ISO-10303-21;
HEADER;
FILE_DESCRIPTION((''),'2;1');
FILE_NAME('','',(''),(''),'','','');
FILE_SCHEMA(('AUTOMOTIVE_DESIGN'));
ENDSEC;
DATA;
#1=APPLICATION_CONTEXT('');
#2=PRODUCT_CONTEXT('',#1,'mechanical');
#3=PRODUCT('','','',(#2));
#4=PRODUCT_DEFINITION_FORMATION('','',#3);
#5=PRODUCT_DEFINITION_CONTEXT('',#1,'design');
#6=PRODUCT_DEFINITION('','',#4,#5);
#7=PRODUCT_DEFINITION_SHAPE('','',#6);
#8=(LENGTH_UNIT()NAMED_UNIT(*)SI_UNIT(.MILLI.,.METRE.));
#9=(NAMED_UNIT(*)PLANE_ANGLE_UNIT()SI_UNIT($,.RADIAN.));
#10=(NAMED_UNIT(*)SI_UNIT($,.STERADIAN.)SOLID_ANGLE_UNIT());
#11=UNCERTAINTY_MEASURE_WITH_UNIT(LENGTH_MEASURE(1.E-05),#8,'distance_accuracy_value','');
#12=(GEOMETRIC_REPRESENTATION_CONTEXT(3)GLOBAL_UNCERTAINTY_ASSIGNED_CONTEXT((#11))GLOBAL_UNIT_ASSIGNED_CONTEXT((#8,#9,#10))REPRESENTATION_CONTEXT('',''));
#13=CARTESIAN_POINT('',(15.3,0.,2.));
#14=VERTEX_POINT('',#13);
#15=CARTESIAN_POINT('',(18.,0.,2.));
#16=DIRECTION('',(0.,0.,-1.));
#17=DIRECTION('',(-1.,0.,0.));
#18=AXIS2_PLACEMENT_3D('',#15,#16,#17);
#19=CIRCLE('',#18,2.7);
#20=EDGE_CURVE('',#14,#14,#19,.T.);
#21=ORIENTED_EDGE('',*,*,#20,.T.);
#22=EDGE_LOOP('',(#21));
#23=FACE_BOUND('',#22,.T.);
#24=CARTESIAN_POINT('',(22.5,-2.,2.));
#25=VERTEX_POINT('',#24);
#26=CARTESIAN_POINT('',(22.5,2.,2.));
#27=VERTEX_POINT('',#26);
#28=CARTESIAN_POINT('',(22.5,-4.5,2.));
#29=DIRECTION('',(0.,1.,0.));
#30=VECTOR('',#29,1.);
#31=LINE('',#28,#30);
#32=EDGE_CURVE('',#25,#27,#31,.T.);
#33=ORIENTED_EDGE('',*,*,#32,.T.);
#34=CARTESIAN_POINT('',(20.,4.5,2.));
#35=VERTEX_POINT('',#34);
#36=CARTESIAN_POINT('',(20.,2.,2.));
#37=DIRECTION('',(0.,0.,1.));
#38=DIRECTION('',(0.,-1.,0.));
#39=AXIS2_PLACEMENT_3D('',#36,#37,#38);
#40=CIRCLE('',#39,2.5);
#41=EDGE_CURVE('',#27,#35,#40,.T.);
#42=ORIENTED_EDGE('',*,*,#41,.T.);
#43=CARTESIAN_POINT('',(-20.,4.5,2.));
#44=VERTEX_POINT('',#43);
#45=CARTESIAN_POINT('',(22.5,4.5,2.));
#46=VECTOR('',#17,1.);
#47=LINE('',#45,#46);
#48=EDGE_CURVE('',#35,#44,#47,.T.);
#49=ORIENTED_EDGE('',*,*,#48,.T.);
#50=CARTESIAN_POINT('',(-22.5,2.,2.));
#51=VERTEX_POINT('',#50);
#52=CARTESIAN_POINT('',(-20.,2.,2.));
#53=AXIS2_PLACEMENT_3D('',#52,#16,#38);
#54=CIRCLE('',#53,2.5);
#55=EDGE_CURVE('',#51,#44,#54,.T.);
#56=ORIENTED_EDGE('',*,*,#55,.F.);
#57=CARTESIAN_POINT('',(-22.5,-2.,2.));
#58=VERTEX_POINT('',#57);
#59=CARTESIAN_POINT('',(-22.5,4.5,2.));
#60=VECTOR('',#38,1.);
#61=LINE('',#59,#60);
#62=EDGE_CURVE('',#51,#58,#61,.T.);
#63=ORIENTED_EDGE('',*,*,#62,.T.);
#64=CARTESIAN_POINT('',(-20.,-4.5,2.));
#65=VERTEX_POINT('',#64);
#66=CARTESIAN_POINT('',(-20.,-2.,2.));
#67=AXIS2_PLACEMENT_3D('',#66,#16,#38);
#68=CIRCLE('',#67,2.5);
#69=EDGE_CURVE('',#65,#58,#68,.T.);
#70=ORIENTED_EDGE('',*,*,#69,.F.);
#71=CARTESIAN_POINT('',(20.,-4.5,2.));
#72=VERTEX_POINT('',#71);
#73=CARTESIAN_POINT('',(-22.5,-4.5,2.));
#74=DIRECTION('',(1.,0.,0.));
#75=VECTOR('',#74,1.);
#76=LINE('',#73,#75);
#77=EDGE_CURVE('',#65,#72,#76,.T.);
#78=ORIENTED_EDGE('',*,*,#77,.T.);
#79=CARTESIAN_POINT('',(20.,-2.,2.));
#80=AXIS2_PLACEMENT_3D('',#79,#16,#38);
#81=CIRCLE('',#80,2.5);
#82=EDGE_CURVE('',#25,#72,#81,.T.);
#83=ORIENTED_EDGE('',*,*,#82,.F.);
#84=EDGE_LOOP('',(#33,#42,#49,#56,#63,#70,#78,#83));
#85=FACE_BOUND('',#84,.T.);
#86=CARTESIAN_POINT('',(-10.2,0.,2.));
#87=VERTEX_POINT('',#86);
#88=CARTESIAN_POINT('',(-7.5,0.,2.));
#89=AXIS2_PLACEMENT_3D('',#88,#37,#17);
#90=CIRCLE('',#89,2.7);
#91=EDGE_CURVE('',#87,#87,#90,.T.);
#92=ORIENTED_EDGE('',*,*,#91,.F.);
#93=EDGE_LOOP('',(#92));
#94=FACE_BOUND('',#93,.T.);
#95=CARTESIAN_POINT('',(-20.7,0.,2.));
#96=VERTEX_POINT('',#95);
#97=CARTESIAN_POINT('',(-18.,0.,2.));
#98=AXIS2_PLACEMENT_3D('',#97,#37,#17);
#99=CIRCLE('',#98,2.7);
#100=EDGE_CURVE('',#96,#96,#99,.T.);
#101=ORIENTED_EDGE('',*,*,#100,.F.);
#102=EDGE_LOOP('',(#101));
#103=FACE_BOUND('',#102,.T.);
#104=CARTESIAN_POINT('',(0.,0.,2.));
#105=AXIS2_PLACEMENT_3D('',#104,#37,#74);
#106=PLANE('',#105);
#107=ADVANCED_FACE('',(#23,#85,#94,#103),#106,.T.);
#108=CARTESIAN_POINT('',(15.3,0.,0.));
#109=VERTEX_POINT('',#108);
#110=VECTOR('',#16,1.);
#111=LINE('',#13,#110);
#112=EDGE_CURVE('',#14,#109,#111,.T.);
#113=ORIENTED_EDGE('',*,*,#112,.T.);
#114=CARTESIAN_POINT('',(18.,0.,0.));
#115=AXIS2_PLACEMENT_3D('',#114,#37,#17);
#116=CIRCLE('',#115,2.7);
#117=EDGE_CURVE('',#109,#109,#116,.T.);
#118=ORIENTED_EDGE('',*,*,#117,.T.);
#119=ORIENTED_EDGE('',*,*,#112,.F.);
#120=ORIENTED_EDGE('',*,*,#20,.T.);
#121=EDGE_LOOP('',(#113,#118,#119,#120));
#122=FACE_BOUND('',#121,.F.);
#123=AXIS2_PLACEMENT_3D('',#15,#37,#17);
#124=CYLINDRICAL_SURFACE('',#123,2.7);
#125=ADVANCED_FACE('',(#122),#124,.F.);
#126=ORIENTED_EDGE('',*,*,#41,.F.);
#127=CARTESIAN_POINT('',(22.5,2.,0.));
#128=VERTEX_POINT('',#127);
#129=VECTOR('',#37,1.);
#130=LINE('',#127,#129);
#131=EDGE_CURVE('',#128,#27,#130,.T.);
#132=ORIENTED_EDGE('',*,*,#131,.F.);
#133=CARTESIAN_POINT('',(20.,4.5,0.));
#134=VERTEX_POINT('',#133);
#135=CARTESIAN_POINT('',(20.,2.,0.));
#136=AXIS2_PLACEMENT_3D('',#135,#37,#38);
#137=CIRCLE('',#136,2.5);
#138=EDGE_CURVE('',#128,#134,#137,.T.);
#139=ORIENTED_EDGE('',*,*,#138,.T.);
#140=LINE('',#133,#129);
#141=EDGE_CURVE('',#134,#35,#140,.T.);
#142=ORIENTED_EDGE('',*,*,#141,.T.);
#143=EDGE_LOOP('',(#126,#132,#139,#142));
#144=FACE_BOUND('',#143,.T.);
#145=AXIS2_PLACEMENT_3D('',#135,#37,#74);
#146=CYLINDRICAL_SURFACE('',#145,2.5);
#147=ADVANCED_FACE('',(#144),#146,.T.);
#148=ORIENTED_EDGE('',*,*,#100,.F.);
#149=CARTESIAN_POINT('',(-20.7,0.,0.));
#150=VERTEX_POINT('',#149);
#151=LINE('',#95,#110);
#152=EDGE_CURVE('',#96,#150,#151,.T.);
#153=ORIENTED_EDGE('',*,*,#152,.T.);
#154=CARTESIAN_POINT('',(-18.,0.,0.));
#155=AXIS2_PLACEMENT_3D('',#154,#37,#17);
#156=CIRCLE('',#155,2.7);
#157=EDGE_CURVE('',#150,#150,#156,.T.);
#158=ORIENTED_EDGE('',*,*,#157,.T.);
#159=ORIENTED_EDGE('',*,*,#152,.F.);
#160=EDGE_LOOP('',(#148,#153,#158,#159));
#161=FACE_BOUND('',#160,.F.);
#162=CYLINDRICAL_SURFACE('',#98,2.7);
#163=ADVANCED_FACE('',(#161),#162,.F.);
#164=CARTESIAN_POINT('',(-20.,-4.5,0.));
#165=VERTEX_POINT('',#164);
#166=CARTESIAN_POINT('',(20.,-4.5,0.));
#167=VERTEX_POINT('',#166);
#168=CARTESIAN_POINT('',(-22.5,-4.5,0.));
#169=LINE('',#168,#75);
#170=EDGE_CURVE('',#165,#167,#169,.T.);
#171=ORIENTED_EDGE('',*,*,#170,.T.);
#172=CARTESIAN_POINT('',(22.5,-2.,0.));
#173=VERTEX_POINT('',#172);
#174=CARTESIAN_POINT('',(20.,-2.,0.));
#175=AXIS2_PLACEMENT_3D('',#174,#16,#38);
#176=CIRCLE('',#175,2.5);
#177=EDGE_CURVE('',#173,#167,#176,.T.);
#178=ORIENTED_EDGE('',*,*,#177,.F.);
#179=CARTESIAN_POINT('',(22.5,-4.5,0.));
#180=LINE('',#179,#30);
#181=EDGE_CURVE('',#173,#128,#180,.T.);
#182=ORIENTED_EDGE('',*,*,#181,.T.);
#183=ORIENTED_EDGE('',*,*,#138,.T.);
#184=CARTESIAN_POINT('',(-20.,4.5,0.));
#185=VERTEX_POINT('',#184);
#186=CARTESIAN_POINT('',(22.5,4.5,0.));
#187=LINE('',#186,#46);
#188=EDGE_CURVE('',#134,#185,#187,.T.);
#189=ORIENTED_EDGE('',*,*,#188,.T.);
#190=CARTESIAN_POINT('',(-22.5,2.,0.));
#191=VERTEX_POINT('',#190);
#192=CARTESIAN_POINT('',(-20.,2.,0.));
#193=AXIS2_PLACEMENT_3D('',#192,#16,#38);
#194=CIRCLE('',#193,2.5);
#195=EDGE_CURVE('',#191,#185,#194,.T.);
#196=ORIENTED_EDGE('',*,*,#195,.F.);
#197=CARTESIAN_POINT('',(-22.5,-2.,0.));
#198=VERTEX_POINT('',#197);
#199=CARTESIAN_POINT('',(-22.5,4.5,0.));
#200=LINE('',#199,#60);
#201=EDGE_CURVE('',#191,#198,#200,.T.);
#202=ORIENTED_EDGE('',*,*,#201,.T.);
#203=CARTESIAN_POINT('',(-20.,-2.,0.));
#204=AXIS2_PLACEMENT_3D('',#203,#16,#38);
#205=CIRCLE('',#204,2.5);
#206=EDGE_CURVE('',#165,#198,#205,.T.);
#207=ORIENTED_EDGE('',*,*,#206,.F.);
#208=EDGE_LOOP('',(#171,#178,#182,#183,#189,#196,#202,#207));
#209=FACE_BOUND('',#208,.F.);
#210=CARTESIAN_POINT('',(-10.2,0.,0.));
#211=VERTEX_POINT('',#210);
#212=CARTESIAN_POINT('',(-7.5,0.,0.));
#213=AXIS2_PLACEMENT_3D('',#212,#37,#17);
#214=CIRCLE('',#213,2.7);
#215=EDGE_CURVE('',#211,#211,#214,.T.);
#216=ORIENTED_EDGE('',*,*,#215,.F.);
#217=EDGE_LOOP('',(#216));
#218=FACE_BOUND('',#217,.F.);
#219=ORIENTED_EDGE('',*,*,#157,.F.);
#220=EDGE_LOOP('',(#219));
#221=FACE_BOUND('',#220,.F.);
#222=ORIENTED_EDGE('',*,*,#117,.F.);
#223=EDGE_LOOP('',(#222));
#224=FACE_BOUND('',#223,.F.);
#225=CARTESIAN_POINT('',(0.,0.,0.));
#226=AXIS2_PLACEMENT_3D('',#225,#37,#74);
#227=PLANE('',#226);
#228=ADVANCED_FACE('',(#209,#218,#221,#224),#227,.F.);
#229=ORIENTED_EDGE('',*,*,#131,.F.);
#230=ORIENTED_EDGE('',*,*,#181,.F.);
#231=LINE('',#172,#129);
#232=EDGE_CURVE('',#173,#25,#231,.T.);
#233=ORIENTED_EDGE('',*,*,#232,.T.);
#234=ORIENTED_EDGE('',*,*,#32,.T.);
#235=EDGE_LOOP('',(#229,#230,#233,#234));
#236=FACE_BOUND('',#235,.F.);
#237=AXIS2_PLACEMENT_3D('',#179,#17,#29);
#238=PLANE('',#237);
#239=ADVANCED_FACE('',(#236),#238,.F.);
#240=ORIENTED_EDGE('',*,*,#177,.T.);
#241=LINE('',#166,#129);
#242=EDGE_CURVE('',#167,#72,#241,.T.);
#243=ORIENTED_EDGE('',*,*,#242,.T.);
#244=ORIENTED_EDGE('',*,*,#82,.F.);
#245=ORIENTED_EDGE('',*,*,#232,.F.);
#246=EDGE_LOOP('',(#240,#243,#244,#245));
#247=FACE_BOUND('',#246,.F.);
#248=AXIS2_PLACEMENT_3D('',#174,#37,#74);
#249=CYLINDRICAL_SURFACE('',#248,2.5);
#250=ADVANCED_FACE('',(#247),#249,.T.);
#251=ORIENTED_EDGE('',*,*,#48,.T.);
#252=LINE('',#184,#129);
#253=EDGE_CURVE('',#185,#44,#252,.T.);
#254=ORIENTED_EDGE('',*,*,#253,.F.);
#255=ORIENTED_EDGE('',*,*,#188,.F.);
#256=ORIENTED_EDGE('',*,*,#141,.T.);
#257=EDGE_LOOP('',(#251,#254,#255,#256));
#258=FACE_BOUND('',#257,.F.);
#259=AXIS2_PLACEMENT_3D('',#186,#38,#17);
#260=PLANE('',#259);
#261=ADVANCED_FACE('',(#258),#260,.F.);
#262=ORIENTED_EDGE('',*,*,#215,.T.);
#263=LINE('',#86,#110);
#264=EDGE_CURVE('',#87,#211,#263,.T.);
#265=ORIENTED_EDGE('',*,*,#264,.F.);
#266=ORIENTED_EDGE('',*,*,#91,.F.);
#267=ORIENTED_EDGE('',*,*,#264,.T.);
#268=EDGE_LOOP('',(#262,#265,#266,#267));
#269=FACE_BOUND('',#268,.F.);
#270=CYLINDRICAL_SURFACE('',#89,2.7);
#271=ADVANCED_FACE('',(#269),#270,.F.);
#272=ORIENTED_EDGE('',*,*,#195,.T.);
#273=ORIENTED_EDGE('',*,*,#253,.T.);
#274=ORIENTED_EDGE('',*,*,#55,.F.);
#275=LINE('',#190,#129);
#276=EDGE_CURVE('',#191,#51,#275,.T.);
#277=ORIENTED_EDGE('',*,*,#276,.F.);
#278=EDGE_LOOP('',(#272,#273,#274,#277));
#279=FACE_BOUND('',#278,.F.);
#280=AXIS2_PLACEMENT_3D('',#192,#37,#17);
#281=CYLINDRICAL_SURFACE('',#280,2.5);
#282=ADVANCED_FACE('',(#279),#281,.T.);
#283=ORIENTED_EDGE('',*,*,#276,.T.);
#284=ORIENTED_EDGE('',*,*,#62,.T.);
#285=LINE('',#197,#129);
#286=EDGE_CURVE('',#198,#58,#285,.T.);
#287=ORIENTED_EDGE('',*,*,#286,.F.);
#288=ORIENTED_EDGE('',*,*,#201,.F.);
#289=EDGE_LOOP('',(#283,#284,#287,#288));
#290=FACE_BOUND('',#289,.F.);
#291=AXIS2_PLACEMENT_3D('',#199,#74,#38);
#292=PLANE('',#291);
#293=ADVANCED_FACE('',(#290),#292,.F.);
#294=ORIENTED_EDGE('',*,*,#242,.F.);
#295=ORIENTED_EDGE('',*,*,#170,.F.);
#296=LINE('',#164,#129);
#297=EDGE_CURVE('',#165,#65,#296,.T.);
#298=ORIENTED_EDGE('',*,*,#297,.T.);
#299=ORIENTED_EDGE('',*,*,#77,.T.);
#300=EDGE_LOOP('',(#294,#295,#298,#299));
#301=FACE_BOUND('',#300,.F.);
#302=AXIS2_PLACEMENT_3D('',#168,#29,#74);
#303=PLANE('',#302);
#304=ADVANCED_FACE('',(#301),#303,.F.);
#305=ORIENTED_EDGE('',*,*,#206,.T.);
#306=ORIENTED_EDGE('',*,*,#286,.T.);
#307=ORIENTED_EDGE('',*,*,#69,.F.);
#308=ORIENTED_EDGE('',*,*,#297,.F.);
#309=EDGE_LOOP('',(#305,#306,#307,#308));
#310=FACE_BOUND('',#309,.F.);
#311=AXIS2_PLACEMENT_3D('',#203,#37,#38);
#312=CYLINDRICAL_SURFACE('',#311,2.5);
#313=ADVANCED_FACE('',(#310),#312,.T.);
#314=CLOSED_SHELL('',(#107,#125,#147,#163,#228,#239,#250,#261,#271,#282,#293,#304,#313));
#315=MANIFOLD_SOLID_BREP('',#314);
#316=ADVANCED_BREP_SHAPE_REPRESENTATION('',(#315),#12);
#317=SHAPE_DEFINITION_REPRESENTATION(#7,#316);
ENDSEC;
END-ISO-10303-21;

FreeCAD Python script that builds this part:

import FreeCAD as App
import Part
import Sketcher

V = App.Vector


def edges_at(feature, points):
    """Names of the edges that pass closest to the given points."""
    edges = feature.Shape.Edges
    near = lambda p: min(range(len(edges)), key=lambda i: edges[i].distToShape(Part.Vertex(*p))[0])
    return sorted({f"Edge{near(p) + 1}" for p in points})

doc = App.newDocument("Part")
body = doc.addObject("PartDesign::Body", "Body")

# Sketch on XY plane
sketch1 = body.newObject("Sketcher::SketchObject", "Sketch")
sketch1.AttachmentSupport = (doc.getObject("XY_Plane"), [""])
sketch1.MapMode = "FlatFace"
sketch1.addGeometry([
    Part.LineSegment(V(22.5, -4.5, 0), V(22.5, 4.5, 0)),
    Part.LineSegment(V(22.5, 4.5, 0), V(-22.5, 4.5, 0)),
    Part.LineSegment(V(-22.5, 4.5, 0), V(-22.5, -4.5, 0)),
    Part.LineSegment(V(-22.5, -4.5, 0), V(22.5, -4.5, 0)),
], False)
sketch1.addConstraint([
    Sketcher.Constraint("Coincident", 0, 2, 1, 1),
    Sketcher.Constraint("Coincident", 1, 2, 2, 1),
    Sketcher.Constraint("Coincident", 2, 2, 3, 1),
    Sketcher.Constraint("Coincident", 3, 2, 0, 1),
    Sketcher.Constraint("Vertical", 0),
    Sketcher.Constraint("Horizontal", 1),
    Sketcher.Constraint("Vertical", 2),
    Sketcher.Constraint("Horizontal", 3),
    Sketcher.Constraint("Symmetric", 0, 2, 2, 2, -1, 1),
    Sketcher.Constraint("DistanceX", 1, 2, 1, 1, 45.0),
    Sketcher.Constraint("DistanceY", 0, 1, 0, 2, 9.0),
])
pad1 = body.newObject("PartDesign::Pad", "Pad")
pad1.Profile = sketch1
pad1.Length = 2
doc.recompute()

fillet = body.newObject("PartDesign::Fillet", "Fillet")
fillet.Base = (pad1, edges_at(pad1, [
    (-22.5, 4.5, 1),
    (-22.5, -4.5, 1),
    (22.5, -4.5, 1),
    (22.5, 4.5, 1),
]))
fillet.Radius = 2.5

# Sketch on XY plane
sketch2 = body.newObject("Sketcher::SketchObject", "Sketch001")
sketch2.AttachmentSupport = (doc.getObject("XY_Plane"), [""])
sketch2.MapMode = "FlatFace"
sketch2.AttachmentOffset = App.Placement(V(0, 0, 2), App.Rotation())
sketch2.addGeometry([
    Part.Circle(V(-18, 0, 0), V(0, 0, 1), 2.7),
    Part.Circle(V(18, 0, 0), V(0, 0, 1), 2.7),
], False)
sketch2.addConstraint([
    Sketcher.Constraint("Equal", 0, 1),
    Sketcher.Constraint("Symmetric", 0, 3, 1, 3, -1, 1),
    Sketcher.Constraint("PointOnObject", 0, 3, -1),
    Sketcher.Constraint("Diameter", 0, 5.4),
    Sketcher.Constraint("DistanceX", 0, 3, -1, 1, 18.0),
])
pocket1 = body.newObject("PartDesign::Pocket", "Pocket")
pocket1.Profile = sketch2
pocket1.Length = 3

# Sketch on XY plane
sketch3 = body.newObject("Sketcher::SketchObject", "Sketch002")
sketch3.AttachmentSupport = (doc.getObject("XY_Plane"), [""])
sketch3.MapMode = "FlatFace"
sketch3.AttachmentOffset = App.Placement(V(0, 0, 2), App.Rotation())
sketch3.addGeometry(Part.Circle(V(-7.5, 0, 0), V(0, 0, 1), 2.7), False)
sketch3.addConstraint([
    Sketcher.Constraint("PointOnObject", 0, 3, -1),
    Sketcher.Constraint("Diameter", 0, 5.4),
    Sketcher.Constraint("DistanceX", 0, 3, -1, 1, 7.5),
])
pocket2 = body.newObject("PartDesign::Pocket", "Pocket001")
pocket2.Profile = sketch3
pocket2.Length = 2

doc.recompute()
